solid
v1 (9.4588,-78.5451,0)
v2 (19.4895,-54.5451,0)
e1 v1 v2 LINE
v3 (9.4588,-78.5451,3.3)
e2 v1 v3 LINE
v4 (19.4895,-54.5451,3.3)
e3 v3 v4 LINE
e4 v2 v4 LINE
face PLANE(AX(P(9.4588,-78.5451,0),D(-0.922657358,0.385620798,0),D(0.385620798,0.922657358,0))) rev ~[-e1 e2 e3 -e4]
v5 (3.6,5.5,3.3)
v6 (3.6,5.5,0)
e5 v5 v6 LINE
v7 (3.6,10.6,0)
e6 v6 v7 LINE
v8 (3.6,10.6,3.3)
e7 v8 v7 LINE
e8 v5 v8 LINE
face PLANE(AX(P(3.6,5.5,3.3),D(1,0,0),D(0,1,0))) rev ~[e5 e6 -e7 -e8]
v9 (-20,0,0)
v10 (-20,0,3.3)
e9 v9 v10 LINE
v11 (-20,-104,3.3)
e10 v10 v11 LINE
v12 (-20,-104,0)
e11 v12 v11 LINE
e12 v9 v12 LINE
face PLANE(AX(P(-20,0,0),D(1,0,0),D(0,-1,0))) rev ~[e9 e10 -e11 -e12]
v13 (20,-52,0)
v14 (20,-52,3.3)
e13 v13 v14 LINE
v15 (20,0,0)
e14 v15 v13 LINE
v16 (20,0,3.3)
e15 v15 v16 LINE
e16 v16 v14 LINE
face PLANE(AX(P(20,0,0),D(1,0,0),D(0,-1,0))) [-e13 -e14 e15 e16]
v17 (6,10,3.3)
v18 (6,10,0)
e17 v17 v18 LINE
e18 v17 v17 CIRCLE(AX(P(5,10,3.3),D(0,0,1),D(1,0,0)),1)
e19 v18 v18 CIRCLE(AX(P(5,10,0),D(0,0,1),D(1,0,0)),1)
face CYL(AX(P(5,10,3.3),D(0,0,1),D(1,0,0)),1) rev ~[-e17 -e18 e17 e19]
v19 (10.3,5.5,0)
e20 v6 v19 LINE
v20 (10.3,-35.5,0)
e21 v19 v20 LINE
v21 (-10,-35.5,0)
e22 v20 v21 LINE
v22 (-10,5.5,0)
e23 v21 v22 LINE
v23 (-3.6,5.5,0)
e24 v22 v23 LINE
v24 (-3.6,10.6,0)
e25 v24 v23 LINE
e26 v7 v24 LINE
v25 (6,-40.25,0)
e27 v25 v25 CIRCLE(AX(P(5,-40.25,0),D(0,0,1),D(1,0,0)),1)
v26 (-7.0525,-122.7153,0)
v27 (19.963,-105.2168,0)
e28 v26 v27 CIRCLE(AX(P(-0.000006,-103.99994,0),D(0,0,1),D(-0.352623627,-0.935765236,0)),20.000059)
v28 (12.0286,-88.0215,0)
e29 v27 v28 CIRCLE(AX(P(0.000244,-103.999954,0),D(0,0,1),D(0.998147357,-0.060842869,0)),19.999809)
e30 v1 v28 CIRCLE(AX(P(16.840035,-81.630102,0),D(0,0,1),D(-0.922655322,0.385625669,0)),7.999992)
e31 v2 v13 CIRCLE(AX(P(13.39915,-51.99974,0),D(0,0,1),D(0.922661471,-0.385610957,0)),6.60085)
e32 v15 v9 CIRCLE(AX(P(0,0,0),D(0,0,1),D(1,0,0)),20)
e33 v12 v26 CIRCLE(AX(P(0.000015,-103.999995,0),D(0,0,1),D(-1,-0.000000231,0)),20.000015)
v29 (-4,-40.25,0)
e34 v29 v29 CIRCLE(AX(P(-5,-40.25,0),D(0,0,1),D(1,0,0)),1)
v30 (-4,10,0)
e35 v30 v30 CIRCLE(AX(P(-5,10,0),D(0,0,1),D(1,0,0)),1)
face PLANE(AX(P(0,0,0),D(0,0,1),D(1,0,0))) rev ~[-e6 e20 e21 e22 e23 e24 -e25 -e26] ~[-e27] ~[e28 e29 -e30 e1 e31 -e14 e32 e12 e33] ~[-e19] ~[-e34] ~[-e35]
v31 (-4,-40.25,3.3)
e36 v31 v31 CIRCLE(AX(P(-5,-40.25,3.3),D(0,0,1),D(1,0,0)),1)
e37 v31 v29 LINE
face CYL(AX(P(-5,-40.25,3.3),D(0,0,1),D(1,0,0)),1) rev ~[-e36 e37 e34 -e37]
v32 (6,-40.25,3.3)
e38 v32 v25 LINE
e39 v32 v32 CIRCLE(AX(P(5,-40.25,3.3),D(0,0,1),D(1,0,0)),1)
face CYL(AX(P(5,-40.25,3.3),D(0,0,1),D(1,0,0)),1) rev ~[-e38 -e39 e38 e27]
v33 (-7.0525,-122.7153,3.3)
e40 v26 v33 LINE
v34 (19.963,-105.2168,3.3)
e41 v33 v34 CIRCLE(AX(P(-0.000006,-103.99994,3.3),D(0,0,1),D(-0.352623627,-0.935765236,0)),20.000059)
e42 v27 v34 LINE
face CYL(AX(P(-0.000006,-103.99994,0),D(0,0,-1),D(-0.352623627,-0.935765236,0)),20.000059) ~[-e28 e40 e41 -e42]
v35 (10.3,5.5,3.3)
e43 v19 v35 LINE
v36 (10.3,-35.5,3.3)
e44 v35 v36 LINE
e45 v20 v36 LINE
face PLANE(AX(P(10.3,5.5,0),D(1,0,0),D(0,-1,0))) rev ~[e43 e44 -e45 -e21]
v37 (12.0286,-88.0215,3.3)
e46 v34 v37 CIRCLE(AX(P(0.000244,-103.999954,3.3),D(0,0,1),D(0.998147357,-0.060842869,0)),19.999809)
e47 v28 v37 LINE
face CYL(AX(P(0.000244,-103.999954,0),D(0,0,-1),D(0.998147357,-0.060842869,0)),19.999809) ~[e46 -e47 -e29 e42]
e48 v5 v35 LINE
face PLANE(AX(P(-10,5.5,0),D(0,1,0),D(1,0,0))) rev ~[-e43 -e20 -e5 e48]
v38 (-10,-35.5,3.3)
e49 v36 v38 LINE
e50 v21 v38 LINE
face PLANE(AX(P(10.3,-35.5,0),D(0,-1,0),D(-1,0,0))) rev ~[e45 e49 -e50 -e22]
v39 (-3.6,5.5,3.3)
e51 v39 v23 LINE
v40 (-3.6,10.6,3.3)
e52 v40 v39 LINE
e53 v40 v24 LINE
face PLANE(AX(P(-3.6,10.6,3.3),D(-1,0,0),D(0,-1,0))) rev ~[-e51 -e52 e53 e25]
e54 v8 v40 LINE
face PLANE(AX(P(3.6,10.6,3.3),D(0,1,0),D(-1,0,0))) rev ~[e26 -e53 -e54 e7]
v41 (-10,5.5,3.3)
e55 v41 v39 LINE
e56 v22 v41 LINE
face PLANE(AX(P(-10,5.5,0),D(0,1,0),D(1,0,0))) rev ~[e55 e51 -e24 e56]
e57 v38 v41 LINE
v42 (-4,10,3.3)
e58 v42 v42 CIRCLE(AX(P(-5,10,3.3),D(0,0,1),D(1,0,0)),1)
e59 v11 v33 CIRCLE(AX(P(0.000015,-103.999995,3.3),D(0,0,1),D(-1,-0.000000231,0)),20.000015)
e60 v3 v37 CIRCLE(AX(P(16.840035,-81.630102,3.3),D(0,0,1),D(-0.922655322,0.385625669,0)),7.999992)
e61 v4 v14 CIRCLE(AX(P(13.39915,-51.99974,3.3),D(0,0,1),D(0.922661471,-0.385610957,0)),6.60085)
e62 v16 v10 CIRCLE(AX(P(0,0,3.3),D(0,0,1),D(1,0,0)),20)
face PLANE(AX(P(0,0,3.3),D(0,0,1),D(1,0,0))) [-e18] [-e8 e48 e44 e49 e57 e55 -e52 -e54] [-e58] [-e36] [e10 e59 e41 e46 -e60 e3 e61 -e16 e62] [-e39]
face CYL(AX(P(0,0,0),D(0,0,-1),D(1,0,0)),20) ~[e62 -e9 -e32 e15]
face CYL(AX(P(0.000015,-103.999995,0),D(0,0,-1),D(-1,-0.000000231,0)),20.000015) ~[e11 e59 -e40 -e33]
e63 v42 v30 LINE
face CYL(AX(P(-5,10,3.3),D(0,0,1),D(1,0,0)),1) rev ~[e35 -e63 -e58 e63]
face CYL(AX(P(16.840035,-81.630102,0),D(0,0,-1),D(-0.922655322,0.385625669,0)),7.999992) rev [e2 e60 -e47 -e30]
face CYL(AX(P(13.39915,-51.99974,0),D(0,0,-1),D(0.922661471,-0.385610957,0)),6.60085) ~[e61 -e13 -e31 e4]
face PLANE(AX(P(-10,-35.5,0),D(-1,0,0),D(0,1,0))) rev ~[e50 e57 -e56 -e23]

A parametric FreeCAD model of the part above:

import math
import FreeCAD as App
import Part
import Sketcher

V = App.Vector

doc = App.newDocument("Part")
params = doc.addObject("Spreadsheet::Sheet", "Params")
for row, (alias, value) in enumerate([
    ("sketch1_radius", "20 mm"),
    ("sketch1_radius2", "8 mm"),
    ("sketch1_radius3", "6.6 mm"),
    ("sketch1_height", "52 mm"),
    ("sketch1_height2", "104 mm"),
    ("pad1_length", "3.3 mm"),
    ("sketch2_diameter", "2 mm"),
    ("pocket1_length", "4.5 mm"),
    ("sketch3_width", "7.2 mm"),
    ("sketch3_height", "5.1 mm"),
    ("pocket2_length", "10 mm"),
], start=1):
    params.set(f"A{row}", alias)
    params.set(f"B{row}", "=" + value)
    params.setAlias(f"B{row}", alias)

body = doc.addObject("PartDesign::Body", "Body")

sketch1 = body.newObject("Sketcher::SketchObject", "Sketch")
sketch1.AttachmentSupport = (doc.getObject("XY_Plane"), [""])
sketch1.MapMode = "FlatFace"
sketch1.addGeometry(Part.LineSegment(V(20, -52, 0), V(20, 0, 0)), False)
sketch1.addGeometry(Part.ArcOfCircle(Part.Circle(V(0, 0, 0), V(0, 0, 1), 20), math.radians(0), math.radians(180)), False)
sketch1.addGeometry(Part.LineSegment(V(-20, 0, 0), V(-20, -104, 0)), False)
sketch1.addGeometry(Part.ArcOfCircle(Part.Circle(V(0, -104, 0), V(0, 0, 1), 20.000005), math.radians(180), math.radians(249.35205)), False)
sketch1.addGeometry(Part.ArcOfCircle(Part.Circle(V(0, -104, 0), V(0, 0, 1), 20.000049), math.radians(-110.64795), math.radians(-3.488021)), False)
sketch1.addGeometry(Part.ArcOfCircle(Part.Circle(V(0, -104, 0), V(0, 0, 1), 20), math.radians(-3.488021), math.radians(53.0276)), False)
sketch1.addGeometry(Part.ArcOfCircle(Part.Circle(V(16.84, -81.6301, 0), V(0, 0, 1), 7.999959), math.radians(157.31733), math.radians(233.027829)), False)
sketch1.addGeometry(Part.LineSegment(V(9.4588, -78.5451, 0), V(19.4895, -54.5451, 0)), False)
sketch1.addGeometry(Part.ArcOfCircle(Part.Circle(V(13.4, -52, 0), V(0, 0, 1), 6.599965), math.radians(-22.682437), math.radians(0)), False)
sketch1.addGeometry(Part.LineSegment(V(-10, -35.5, 0), V(-10, 5.5, 0)), False)
sketch1.addGeometry(Part.LineSegment(V(-10, 5.5, 0), V(10.3, 5.5, 0)), False)
sketch1.addGeometry(Part.LineSegment(V(10.3, 5.5, 0), V(10.3, -35.5, 0)), False)
sketch1.addGeometry(Part.LineSegment(V(10.3, -35.5, 0), V(-10, -35.5, 0)), False)
sketch1.addConstraint(Sketcher.Constraint("Tangent", 0, 2, 1, 1))
sketch1.addConstraint(Sketcher.Constraint("Tangent", 1, 2, 2, 1))
sketch1.addConstraint(Sketcher.Constraint("Tangent", 2, 2, 3, 1))
sketch1.addConstraint(Sketcher.Constraint("Tangent", 3, 2, 4, 1))
sketch1.addConstraint(Sketcher.Constraint("Tangent", 4, 2, 5, 1))
sketch1.addConstraint(Sketcher.Constraint("Tangent", 5, 2, 6, 2))
sketch1.addConstraint(Sketcher.Constraint("Tangent", 6, 1, 7, 1))
sketch1.addConstraint(Sketcher.Constraint("Tangent", 7, 2, 8, 1))
sketch1.addConstraint(Sketcher.Constraint("Tangent", 8, 2, 0, 1))
sketch1.addConstraint(Sketcher.Constraint("Coincident", 9, 2, 10, 1))
sketch1.addConstraint(Sketcher.Constraint("Coincident", 10, 2, 11, 1))
sketch1.addConstraint(Sketcher.Constraint("Coincident", 11, 2, 12, 1))
sketch1.addConstraint(Sketcher.Constraint("Coincident", 12, 2, 9, 1))
sketch1.addConstraint(Sketcher.Constraint("Vertical", 0))
sketch1.addConstraint(Sketcher.Constraint("Vertical", 2))
sketch1.addConstraint(Sketcher.Constraint("Vertical", 9))
sketch1.addConstraint(Sketcher.Constraint("Horizontal", 10))
sketch1.addConstraint(Sketcher.Constraint("Vertical", 11))
sketch1.addConstraint(Sketcher.Constraint("Horizontal", 12))
sketch1.addConstraint(Sketcher.Constraint("Coincident", 1, 3, -1, 1))
sketch1.addConstraint(Sketcher.Constraint("Coincident", 5, 3, 3, 3))
sketch1.addConstraint(Sketcher.Constraint("Equal", 1, 3))
sketch1.addConstraint(Sketcher.Constraint("Radius", 1, 20.0))
sketch1.addConstraint(Sketcher.Constraint("Radius", 6, 8.0))
sketch1.addConstraint(Sketcher.Constraint("Radius", 8, 6.6))
sketch1.addConstraint(Sketcher.Constraint("DistanceY", 0, 1, 0, 2, 52.0))
sketch1.addConstraint(Sketcher.Constraint("DistanceY", 2, 2, 2, 1, 104.0))
sketch1.addConstraint(Sketcher.Constraint("DistanceY", 9, 1, 9, 2, 41.0))
sketch1.addConstraint(Sketcher.Constraint("DistanceX", 10, 1, 10, 2, 20.3))
sketch1.addConstraint(Sketcher.Constraint("DistanceX", 9, 2, -1, 1, 10.0))
sketch1.addConstraint(Sketcher.Constraint("DistanceY", 6, 1, 7, 2, 24.0))
sketch1.addConstraint(Sketcher.Constraint("DistanceY", -1, 1, 9, 2, 5.5))
sketch1.addConstraint(Sketcher.Constraint("DistanceX", -1, 1, 4, 2, 19.963))
sketch1.addConstraint(Sketcher.Constraint("DistanceX", 3, 2, -1, 1, 7.0525))
sketch1.setExpression("Constraints[22]", "Params.sketch1_radius")
sketch1.setExpression("Constraints[23]", "Params.sketch1_radius2")
sketch1.setExpression("Constraints[24]", "Params.sketch1_radius3")
sketch1.setExpression("Constraints[25]", "Params.sketch1_height")
sketch1.setExpression("Constraints[26]", "Params.sketch1_height2")
pad1 = body.newObject("PartDesign::Pad", "Pad")
pad1.Profile = sketch1
pad1.setExpression("Length", "Params.pad1_length")

sketch2 = body.newObject("Sketcher::SketchObject", "Sketch001")
sketch2.AttachmentSupport = (doc.getObject("XY_Plane"), [""])
sketch2.MapMode = "FlatFace"
sketch2.AttachmentOffset = App.Placement(V(0, 0, 3.3), App.Rotation())
sketch2.addGeometry(Part.Circle(V(-5, 10, 0), V(0, 0, 1), 1), False)
sketch2.addGeometry(Part.Circle(V(-5, -40.25, 0), V(0, 0, 1), 1), False)
sketch2.addGeometry(Part.Circle(V(5, 10, 0), V(0, 0, 1), 1), False)
sketch2.addGeometry(Part.Circle(V(5, -40.25, 0), V(0, 0, 1), 1), False)
sketch2.addConstraint(Sketcher.Constraint("Equal", 0, 1))
sketch2.addConstraint(Sketcher.Constraint("Equal", 1, 2))
sketch2.addConstraint(Sketcher.Constraint("Equal", 2, 3))
sketch2.addConstraint(Sketcher.Constraint("Symmetric", 0, 3, 2, 3, -2))
sketch2.addConstraint(Sketcher.Constraint("Symmetric", 1, 3, 3, 3, -2))
sketch2.addConstraint(Sketcher.Constraint("Vertical", 0, 3, 1, 3))
sketch2.addConstraint(Sketcher.Constraint("Diameter", 0, 2.0))
sketch2.addConstraint(Sketcher.Constraint("DistanceX", 0, 3, -1, 1, 5.0))
sketch2.addConstraint(Sketcher.Constraint("DistanceY", -1, 1, 0, 3, 10.0))
sketch2.addConstraint(Sketcher.Constraint("DistanceY", 1, 3, -1, 1, 40.25))
sketch2.setExpression("Constraints[6]", "Params.sketch2_diameter")
pocket1 = body.newObject("PartDesign::Pocket", "Pocket")
pocket1.Profile = sketch2
pocket1.setExpression("Length", "Params.pocket1_length")

sketch3 = body.newObject("Sketcher::SketchObject", "Sketch002")
sketch3.AttachmentSupport = (doc.getObject("XY_Plane"), [""])
sketch3.MapMode = "FlatFace"
sketch3.AttachmentOffset = App.Placement(V(0, 0, 3.3), App.Rotation())
sketch3.addGeometry(Part.LineSegment(V(-3.6, 5.5, 0), V(3.6, 5.5, 0)), False)
sketch3.addGeometry(Part.LineSegment(V(3.6, 5.5, 0), V(3.6, 10.6, 0)), False)
sketch3.addGeometry(Part.LineSegment(V(3.6, 10.6, 0), V(-3.6, 10.6, 0)), False)
sketch3.addGeometry(Part.LineSegment(V(-3.6, 10.6, 0), V(-3.6, 5.5, 0)), False)
sketch3.addConstraint(Sketcher.Constraint("Coincident", 0, 2, 1, 1))
sketch3.addConstraint(Sketcher.Constraint("Coincident", 1, 2, 2, 1))
sketch3.addConstraint(Sketcher.Constraint("Coincident", 2, 2, 3, 1))
sketch3.addConstraint(Sketcher.Constraint("Coincident", 3, 2, 0, 1))
sketch3.addConstraint(Sketcher.Constraint("Horizontal", 0))
sketch3.addConstraint(Sketcher.Constraint("Vertical", 1))
sketch3.addConstraint(Sketcher.Constraint("Horizontal", 2))
sketch3.addConstraint(Sketcher.Constraint("Vertical", 3))
sketch3.addConstraint(Sketcher.Constraint("DistanceX", 0, 1, 0, 2, 7.2))
sketch3.addConstraint(Sketcher.Constraint("DistanceY", 1, 1, 1, 2, 5.1))
sketch3.addConstraint(Sketcher.Constraint("DistanceX", -1, 1, 0, 2, 3.6))
sketch3.addConstraint(Sketcher.Constraint("DistanceY", -1, 1, 0, 2, 5.5))
sketch3.setExpression("Constraints[8]", "Params.sketch3_width")
sketch3.setExpression("Constraints[9]", "Params.sketch3_height")
pocket2 = body.newObject("PartDesign::Pocket", "Pocket001")
pocket2.Profile = sketch3
pocket2.setExpression("Length", "Params.pocket2_length")

doc.recompute()
